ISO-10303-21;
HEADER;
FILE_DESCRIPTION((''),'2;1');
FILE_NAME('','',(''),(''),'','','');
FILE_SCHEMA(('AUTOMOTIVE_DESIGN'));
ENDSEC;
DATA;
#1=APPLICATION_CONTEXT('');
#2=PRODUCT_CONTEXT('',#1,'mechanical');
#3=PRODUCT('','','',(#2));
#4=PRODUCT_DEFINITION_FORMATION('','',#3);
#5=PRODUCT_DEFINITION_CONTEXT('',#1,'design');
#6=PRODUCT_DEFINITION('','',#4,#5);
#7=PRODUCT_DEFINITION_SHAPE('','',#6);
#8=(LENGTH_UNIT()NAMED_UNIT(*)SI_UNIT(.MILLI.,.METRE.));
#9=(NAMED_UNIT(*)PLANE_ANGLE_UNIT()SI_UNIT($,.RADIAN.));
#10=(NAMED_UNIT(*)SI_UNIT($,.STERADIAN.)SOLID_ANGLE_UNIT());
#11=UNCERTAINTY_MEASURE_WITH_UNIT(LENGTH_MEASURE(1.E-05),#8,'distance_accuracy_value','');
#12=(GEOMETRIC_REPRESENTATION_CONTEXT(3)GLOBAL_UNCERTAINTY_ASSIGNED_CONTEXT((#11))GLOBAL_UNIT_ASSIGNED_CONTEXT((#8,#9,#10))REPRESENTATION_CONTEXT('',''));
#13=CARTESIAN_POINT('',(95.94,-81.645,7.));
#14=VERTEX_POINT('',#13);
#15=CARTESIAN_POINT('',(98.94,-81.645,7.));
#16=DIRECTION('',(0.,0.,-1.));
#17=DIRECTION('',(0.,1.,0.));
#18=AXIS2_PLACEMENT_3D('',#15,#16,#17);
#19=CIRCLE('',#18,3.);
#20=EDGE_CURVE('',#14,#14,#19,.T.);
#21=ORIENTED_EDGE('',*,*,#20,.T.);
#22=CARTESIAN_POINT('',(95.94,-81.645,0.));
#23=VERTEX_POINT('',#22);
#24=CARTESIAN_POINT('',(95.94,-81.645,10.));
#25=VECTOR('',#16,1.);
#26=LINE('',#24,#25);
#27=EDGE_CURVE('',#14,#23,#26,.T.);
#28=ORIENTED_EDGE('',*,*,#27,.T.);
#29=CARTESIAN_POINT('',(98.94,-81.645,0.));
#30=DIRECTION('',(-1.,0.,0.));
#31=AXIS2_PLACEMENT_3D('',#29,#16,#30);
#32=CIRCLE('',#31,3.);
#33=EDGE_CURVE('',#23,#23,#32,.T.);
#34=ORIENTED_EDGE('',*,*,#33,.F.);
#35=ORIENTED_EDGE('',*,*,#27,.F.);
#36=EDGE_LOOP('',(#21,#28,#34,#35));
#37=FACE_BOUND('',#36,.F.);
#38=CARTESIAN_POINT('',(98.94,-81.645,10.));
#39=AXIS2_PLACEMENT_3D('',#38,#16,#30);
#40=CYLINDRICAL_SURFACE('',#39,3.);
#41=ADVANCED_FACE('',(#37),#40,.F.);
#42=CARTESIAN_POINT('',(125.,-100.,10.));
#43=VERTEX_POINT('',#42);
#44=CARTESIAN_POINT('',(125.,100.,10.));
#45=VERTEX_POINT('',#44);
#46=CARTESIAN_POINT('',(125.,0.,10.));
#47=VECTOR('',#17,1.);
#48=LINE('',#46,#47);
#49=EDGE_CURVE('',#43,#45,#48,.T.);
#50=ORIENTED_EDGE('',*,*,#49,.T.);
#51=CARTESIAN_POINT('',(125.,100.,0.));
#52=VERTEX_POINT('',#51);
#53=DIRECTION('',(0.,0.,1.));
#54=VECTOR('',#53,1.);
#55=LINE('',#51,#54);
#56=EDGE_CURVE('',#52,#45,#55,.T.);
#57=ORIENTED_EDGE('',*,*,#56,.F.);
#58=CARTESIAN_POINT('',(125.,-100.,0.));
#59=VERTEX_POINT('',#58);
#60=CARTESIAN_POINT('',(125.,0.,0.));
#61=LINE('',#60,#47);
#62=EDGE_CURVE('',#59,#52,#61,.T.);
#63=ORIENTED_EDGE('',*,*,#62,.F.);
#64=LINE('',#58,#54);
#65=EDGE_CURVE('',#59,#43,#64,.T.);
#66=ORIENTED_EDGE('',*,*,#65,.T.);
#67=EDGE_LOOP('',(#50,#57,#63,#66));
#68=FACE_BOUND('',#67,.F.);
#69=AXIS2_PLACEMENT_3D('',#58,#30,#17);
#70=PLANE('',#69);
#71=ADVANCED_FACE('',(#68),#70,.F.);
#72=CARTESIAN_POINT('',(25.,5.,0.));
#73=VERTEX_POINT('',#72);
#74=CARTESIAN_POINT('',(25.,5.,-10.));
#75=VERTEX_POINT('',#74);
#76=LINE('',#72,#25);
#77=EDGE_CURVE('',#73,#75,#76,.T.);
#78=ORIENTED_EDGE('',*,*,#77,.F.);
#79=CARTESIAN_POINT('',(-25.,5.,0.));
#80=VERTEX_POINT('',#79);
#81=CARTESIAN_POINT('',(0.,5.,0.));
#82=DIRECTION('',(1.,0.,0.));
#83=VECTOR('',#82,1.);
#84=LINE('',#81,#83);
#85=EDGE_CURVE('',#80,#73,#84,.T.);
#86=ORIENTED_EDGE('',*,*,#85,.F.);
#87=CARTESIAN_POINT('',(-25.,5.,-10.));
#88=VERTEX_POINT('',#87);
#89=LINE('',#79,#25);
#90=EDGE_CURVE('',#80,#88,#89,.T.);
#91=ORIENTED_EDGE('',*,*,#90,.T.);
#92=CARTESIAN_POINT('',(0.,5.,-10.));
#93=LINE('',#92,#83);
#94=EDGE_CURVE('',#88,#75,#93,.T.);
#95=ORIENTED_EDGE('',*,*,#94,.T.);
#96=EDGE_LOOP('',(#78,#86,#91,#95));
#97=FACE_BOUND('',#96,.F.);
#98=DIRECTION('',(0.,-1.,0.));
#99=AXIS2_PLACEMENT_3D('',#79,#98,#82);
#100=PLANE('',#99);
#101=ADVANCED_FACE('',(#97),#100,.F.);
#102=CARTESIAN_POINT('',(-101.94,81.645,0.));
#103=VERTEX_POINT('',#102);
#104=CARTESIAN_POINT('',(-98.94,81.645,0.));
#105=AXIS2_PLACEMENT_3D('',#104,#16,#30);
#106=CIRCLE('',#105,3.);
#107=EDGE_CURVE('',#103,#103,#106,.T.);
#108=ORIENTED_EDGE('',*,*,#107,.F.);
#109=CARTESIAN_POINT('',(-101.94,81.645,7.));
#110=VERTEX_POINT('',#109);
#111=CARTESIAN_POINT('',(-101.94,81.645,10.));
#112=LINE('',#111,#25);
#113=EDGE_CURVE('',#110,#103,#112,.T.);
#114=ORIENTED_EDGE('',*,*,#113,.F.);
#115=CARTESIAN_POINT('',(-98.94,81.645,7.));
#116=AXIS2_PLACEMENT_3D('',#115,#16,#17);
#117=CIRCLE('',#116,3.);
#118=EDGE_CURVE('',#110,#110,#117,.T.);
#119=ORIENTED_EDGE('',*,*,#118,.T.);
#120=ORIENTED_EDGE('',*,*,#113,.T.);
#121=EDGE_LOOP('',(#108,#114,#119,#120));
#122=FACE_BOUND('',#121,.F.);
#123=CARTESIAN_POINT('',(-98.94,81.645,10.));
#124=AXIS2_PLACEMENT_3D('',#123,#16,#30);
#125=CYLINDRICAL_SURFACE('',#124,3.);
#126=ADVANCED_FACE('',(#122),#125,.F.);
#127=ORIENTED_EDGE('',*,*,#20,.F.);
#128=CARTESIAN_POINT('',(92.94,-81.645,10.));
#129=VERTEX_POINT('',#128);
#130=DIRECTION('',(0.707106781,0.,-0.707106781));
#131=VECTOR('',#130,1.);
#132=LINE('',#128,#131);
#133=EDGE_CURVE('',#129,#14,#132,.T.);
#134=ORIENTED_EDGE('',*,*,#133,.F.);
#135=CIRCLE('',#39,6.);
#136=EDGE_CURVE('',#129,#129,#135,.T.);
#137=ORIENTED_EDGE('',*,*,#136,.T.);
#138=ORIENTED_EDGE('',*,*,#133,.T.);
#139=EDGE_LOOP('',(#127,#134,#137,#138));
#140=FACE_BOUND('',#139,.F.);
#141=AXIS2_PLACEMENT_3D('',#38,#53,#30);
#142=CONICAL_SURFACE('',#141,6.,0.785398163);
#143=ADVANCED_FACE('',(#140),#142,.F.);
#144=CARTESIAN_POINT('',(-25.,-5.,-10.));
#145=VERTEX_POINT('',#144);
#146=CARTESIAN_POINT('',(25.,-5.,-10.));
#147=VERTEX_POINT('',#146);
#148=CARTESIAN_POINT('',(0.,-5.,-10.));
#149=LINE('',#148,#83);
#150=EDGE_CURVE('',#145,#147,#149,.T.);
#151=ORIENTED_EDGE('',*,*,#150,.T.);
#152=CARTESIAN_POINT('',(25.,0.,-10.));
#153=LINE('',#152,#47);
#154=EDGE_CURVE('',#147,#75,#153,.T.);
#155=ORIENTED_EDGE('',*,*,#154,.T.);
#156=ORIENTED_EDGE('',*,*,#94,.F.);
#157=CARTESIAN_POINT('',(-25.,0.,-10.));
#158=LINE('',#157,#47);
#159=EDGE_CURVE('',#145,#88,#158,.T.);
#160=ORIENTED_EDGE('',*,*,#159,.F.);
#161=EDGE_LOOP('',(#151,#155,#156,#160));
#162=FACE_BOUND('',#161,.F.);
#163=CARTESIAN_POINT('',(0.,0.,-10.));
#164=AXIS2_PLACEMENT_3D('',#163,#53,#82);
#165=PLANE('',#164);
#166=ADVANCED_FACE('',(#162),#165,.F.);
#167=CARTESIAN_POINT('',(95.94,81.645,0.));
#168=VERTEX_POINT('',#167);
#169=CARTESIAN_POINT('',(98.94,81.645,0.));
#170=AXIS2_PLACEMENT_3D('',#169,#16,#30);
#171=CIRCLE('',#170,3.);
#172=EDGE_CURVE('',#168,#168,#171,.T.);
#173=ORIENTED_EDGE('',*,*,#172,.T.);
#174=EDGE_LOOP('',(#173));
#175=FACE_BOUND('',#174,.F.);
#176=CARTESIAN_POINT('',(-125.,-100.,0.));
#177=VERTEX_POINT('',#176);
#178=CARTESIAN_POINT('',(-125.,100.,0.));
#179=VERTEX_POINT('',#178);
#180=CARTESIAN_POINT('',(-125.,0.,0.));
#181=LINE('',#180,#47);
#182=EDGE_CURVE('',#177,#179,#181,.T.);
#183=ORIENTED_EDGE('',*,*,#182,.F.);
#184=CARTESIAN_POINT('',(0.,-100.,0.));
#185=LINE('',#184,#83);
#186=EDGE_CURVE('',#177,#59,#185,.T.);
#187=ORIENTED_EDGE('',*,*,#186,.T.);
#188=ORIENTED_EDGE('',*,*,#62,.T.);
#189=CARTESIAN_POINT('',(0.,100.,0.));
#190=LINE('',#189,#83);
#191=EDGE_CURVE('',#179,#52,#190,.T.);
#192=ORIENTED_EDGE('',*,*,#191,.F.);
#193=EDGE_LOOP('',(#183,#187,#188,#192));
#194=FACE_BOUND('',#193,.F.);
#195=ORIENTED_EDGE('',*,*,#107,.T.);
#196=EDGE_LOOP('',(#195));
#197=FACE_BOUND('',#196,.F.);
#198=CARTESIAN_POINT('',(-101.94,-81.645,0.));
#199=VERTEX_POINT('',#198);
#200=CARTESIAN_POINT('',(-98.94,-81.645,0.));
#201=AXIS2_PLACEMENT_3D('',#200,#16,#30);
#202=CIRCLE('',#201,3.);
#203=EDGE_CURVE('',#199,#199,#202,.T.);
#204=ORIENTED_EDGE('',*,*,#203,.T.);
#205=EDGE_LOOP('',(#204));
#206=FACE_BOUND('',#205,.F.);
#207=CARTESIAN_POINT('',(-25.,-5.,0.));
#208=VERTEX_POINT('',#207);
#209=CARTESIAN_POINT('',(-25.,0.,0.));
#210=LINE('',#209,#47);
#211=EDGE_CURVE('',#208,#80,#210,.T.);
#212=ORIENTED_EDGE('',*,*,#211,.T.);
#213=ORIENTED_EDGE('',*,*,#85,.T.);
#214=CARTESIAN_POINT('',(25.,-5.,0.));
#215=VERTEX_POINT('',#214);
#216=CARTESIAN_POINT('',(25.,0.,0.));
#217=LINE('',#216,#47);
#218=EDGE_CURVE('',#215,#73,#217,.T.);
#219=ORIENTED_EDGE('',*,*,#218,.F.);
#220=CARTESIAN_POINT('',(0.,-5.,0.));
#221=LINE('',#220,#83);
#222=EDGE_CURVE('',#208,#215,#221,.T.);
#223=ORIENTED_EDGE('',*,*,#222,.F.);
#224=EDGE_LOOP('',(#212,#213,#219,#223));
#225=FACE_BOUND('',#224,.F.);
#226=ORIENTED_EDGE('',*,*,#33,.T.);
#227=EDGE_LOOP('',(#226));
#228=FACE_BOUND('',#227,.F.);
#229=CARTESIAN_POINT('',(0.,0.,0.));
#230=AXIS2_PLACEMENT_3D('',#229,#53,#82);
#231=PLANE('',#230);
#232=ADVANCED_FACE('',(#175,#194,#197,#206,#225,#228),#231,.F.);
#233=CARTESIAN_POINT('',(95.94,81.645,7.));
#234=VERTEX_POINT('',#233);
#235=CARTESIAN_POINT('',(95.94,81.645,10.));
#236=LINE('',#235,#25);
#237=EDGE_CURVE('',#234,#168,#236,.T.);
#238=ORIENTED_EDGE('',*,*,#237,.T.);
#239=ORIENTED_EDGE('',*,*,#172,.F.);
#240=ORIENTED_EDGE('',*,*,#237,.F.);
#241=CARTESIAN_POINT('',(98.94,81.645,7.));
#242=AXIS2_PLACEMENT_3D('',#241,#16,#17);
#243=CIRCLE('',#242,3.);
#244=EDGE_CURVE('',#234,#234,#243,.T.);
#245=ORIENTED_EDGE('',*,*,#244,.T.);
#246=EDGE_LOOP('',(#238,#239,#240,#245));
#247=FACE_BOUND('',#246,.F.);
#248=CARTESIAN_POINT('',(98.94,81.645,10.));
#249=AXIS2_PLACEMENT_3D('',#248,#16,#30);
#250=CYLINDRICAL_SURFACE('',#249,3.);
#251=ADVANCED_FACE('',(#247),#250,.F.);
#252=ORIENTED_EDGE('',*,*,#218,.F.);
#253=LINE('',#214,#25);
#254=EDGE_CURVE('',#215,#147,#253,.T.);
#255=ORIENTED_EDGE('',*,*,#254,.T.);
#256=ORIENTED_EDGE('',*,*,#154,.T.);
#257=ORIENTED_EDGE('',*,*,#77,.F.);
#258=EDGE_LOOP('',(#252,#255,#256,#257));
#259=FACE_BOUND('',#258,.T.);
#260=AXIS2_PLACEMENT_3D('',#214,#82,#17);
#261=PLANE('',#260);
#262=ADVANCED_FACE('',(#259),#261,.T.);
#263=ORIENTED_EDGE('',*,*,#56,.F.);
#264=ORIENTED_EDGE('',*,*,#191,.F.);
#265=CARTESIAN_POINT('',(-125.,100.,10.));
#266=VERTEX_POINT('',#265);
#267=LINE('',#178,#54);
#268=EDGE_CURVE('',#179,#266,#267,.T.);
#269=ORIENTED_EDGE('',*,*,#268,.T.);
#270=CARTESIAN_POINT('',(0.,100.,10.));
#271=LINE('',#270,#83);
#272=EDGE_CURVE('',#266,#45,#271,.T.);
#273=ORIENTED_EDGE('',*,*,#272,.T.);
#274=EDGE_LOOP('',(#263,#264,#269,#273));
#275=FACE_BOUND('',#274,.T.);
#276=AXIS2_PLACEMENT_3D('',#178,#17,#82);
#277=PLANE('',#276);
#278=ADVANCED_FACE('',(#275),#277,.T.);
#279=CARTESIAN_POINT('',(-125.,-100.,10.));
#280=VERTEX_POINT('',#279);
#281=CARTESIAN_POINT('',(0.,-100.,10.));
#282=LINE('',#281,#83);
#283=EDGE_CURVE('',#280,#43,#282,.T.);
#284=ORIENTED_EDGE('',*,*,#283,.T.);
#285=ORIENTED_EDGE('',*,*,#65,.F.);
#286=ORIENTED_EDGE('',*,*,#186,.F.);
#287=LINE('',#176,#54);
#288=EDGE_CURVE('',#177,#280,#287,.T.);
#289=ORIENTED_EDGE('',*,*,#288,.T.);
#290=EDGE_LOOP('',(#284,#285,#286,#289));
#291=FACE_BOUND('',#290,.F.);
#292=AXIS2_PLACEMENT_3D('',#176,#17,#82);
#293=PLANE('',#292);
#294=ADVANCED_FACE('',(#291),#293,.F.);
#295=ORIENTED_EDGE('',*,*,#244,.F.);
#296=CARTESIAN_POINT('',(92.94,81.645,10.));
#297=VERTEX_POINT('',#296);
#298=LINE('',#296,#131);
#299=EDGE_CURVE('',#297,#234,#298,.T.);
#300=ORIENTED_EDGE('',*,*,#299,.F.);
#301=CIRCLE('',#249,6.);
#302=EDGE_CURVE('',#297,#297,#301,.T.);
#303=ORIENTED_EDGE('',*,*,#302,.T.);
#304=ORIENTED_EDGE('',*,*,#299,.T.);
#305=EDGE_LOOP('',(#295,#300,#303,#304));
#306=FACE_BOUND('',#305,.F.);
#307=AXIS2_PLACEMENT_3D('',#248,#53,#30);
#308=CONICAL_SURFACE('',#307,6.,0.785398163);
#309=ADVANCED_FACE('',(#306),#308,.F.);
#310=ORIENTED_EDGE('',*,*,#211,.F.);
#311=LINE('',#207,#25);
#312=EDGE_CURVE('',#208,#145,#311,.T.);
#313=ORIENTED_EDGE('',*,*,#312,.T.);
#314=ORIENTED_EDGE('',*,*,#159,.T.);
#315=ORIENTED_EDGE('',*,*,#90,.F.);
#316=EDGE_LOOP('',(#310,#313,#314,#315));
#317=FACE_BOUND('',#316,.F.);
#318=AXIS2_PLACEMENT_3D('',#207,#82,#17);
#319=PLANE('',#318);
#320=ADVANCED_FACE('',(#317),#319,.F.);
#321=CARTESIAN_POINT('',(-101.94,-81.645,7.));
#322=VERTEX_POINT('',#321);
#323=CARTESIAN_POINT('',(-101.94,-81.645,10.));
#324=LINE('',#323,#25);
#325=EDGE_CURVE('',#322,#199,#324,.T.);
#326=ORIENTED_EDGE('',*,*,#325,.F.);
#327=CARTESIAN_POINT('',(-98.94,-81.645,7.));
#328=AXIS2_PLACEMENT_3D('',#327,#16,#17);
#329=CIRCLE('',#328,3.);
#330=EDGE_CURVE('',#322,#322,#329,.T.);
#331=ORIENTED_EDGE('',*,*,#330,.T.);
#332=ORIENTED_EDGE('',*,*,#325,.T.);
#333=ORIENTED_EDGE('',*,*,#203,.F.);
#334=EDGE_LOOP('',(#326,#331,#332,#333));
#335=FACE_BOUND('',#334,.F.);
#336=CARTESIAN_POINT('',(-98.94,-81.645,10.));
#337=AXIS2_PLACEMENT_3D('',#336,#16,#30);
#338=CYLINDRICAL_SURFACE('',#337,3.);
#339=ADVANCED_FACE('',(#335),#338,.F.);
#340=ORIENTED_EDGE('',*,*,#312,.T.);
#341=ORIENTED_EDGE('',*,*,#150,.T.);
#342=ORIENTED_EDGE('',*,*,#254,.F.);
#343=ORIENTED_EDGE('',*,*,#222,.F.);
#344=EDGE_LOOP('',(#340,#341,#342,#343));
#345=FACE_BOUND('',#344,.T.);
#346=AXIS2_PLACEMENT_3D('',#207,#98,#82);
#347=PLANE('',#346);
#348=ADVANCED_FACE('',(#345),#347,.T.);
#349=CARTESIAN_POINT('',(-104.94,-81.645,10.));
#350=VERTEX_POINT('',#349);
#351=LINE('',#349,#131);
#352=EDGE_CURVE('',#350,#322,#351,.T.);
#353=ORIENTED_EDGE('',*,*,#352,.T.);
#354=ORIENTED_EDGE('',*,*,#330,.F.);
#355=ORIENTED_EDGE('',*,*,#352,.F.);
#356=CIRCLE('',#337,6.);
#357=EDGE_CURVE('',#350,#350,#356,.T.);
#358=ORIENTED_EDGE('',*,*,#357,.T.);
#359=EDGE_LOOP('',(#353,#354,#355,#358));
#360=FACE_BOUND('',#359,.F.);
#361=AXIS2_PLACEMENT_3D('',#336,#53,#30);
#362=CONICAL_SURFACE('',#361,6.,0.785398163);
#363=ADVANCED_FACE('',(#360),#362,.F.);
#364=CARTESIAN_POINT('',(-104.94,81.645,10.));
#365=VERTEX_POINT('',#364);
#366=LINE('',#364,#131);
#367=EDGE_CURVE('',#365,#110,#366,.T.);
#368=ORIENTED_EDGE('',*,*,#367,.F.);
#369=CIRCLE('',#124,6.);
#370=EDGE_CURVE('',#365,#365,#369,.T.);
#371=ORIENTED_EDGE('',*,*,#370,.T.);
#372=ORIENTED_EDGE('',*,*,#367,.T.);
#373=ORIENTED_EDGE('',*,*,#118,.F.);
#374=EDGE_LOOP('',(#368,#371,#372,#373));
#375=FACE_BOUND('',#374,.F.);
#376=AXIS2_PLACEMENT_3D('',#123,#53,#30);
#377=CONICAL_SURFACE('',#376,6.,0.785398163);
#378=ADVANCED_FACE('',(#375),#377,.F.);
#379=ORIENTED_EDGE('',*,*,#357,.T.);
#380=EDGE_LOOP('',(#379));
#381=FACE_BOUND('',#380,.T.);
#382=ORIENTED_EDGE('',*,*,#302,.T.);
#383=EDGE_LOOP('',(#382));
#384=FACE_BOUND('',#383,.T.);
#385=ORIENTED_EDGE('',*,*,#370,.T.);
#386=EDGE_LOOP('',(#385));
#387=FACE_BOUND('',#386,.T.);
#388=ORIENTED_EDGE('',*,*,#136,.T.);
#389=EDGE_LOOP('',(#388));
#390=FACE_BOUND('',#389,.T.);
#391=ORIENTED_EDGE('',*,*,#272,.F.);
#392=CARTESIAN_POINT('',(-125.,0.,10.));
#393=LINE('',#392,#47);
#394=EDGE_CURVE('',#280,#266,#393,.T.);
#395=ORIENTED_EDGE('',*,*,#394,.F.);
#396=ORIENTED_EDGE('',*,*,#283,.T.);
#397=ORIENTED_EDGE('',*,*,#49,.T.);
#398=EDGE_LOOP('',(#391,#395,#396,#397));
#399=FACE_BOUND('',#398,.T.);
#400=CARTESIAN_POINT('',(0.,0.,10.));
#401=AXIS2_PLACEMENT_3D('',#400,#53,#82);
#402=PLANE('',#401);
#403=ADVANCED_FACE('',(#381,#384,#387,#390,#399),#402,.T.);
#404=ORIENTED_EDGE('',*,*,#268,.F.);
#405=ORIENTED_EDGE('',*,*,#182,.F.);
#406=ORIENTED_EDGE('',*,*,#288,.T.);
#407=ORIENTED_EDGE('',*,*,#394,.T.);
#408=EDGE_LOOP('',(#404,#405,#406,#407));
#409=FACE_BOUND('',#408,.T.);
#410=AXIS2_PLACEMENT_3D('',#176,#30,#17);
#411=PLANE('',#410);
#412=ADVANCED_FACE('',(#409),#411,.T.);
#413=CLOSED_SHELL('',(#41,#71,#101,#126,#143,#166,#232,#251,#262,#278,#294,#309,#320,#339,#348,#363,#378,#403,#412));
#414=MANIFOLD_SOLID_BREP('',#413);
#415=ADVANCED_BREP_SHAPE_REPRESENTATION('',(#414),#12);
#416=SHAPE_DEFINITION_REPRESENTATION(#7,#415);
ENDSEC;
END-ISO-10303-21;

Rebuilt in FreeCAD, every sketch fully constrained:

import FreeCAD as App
import Part
import Sketcher

V = App.Vector
Q = App.Units.Quantity


def add_polygon(sketch, points):
    """Adds a closed chain of lines whose ends are joined by coincident constraints."""
    first, n = sketch.GeometryCount, len(points)
    for a, b in zip(points, points[1:] + points[:1]):
        sketch.addGeometry(Part.LineSegment(App.Vector(*a, 0), App.Vector(*b, 0)), False)
    for i in range(n):
        sketch.addConstraint(Sketcher.Constraint("Coincident", first + i, 2, first + (i + 1) % n, 1))

doc = App.newDocument("Part")
body = doc.addObject("PartDesign::Body", "Body")

sketch1 = body.newObject("Sketcher::SketchObject", "Sketch")
sketch1.AttachmentSupport = (doc.getObject("XY_Plane"), [""])
sketch1.MapMode = "FlatFace"
add_polygon(sketch1, [(-125, 100), (-125, -100), (125, -100), (125, 100)])
sketch1.addConstraint(Sketcher.Constraint("Vertical", 0))
sketch1.addConstraint(Sketcher.Constraint("Horizontal", 1))
sketch1.addConstraint(Sketcher.Constraint("Vertical", 2))
sketch1.addConstraint(Sketcher.Constraint("Horizontal", 3))
sketch1.addConstraint(Sketcher.Constraint("Symmetric", 0, 2, 2, 2, -1, 1))
sketch1.addConstraint(Sketcher.Constraint("DistanceX", 1, 1, 1, 2, Q("250 mm")))
sketch1.addConstraint(Sketcher.Constraint("DistanceY", 0, 2, 0, 1, Q("200 mm")))
pad1 = body.newObject("PartDesign::Pad", "Pad")
pad1.Profile = sketch1
pad1.Length = 10

sketch2 = body.newObject("Sketcher::SketchObject", "Sketch001")
sketch2.AttachmentSupport = (doc.getObject("XY_Plane"), [""])
sketch2.MapMode = "FlatFace"
sketch2.AttachmentOffset = App.Placement(V(0, 0, 10), App.Rotation())
sketch2.addGeometry(Part.Circle(V(-98.94, 81.645, 0), V(0, 0, 1), 3), False)
sketch2.addGeometry(Part.Circle(V(98.94, 81.645, 0), V(0, 0, 1), 3), False)
sketch2.addGeometry(Part.Circle(V(98.94, -81.645, 0), V(0, 0, 1), 3), False)
sketch2.addGeometry(Part.Circle(V(-98.94, -81.645, 0), V(0, 0, 1), 3), False)
sketch2.addConstraint(Sketcher.Constraint("Equal", 0, 1))
sketch2.addConstraint(Sketcher.Constraint("Equal", 1, 2))
sketch2.addConstraint(Sketcher.Constraint("Equal", 2, 3))
sketch2.addConstraint(Sketcher.Constraint("Symmetric", 0, 3, 2, 3, -1, 1))
sketch2.addConstraint(Sketcher.Constraint("Symmetric", 1, 3, 3, 3, -1, 1))
sketch2.addConstraint(Sketcher.Constraint("Symmetric", 0, 3, 1, 3, -2))
sketch2.addConstraint(Sketcher.Constraint("Diameter", 0, Q("6 mm")))
sketch2.addConstraint(Sketcher.Constraint("DistanceX", 0, 3, -1, 1, Q("98.94 mm")))
sketch2.addConstraint(Sketcher.Constraint("DistanceY", 2, 3, 1, 3, Q("163.29 mm")))
doc.recompute()
hole = body.newObject("PartDesign::Hole", "Hole")
hole.Profile = sketch2
hole.ThreadType = "None"
hole.Diameter = 6
hole.DepthType = "ThroughAll"
hole.HoleCutType = "Countersink"
hole.HoleCutDiameter = 12
hole.HoleCutCountersinkAngle = 90

sketch3 = body.newObject("Sketcher::SketchObject", "Sketch002")
sketch3.AttachmentSupport = (doc.getObject("XY_Plane"), [""])
sketch3.MapMode = "FlatFace"
add_polygon(sketch3, [(-25, 5), (-25, -5), (25, -5), (25, 5)])
sketch3.addConstraint(Sketcher.Constraint("Vertical", 0))
sketch3.addConstraint(Sketcher.Constraint("Horizontal", 1))
sketch3.addConstraint(Sketcher.Constraint("Vertical", 2))
sketch3.addConstraint(Sketcher.Constraint("Horizontal", 3))
sketch3.addConstraint(Sketcher.Constraint("Symmetric", 0, 2, 2, 2, -1, 1))
sketch3.addConstraint(Sketcher.Constraint("DistanceX", 1, 1, 1, 2, Q("50 mm")))
sketch3.addConstraint(Sketcher.Constraint("DistanceY", 0, 2, 0, 1, Q("10 mm")))
pad2 = body.newObject("PartDesign::Pad", "Pad001")
pad2.Profile = sketch3
pad2.Length = 10
pad2.Reversed = True

doc.recompute()
